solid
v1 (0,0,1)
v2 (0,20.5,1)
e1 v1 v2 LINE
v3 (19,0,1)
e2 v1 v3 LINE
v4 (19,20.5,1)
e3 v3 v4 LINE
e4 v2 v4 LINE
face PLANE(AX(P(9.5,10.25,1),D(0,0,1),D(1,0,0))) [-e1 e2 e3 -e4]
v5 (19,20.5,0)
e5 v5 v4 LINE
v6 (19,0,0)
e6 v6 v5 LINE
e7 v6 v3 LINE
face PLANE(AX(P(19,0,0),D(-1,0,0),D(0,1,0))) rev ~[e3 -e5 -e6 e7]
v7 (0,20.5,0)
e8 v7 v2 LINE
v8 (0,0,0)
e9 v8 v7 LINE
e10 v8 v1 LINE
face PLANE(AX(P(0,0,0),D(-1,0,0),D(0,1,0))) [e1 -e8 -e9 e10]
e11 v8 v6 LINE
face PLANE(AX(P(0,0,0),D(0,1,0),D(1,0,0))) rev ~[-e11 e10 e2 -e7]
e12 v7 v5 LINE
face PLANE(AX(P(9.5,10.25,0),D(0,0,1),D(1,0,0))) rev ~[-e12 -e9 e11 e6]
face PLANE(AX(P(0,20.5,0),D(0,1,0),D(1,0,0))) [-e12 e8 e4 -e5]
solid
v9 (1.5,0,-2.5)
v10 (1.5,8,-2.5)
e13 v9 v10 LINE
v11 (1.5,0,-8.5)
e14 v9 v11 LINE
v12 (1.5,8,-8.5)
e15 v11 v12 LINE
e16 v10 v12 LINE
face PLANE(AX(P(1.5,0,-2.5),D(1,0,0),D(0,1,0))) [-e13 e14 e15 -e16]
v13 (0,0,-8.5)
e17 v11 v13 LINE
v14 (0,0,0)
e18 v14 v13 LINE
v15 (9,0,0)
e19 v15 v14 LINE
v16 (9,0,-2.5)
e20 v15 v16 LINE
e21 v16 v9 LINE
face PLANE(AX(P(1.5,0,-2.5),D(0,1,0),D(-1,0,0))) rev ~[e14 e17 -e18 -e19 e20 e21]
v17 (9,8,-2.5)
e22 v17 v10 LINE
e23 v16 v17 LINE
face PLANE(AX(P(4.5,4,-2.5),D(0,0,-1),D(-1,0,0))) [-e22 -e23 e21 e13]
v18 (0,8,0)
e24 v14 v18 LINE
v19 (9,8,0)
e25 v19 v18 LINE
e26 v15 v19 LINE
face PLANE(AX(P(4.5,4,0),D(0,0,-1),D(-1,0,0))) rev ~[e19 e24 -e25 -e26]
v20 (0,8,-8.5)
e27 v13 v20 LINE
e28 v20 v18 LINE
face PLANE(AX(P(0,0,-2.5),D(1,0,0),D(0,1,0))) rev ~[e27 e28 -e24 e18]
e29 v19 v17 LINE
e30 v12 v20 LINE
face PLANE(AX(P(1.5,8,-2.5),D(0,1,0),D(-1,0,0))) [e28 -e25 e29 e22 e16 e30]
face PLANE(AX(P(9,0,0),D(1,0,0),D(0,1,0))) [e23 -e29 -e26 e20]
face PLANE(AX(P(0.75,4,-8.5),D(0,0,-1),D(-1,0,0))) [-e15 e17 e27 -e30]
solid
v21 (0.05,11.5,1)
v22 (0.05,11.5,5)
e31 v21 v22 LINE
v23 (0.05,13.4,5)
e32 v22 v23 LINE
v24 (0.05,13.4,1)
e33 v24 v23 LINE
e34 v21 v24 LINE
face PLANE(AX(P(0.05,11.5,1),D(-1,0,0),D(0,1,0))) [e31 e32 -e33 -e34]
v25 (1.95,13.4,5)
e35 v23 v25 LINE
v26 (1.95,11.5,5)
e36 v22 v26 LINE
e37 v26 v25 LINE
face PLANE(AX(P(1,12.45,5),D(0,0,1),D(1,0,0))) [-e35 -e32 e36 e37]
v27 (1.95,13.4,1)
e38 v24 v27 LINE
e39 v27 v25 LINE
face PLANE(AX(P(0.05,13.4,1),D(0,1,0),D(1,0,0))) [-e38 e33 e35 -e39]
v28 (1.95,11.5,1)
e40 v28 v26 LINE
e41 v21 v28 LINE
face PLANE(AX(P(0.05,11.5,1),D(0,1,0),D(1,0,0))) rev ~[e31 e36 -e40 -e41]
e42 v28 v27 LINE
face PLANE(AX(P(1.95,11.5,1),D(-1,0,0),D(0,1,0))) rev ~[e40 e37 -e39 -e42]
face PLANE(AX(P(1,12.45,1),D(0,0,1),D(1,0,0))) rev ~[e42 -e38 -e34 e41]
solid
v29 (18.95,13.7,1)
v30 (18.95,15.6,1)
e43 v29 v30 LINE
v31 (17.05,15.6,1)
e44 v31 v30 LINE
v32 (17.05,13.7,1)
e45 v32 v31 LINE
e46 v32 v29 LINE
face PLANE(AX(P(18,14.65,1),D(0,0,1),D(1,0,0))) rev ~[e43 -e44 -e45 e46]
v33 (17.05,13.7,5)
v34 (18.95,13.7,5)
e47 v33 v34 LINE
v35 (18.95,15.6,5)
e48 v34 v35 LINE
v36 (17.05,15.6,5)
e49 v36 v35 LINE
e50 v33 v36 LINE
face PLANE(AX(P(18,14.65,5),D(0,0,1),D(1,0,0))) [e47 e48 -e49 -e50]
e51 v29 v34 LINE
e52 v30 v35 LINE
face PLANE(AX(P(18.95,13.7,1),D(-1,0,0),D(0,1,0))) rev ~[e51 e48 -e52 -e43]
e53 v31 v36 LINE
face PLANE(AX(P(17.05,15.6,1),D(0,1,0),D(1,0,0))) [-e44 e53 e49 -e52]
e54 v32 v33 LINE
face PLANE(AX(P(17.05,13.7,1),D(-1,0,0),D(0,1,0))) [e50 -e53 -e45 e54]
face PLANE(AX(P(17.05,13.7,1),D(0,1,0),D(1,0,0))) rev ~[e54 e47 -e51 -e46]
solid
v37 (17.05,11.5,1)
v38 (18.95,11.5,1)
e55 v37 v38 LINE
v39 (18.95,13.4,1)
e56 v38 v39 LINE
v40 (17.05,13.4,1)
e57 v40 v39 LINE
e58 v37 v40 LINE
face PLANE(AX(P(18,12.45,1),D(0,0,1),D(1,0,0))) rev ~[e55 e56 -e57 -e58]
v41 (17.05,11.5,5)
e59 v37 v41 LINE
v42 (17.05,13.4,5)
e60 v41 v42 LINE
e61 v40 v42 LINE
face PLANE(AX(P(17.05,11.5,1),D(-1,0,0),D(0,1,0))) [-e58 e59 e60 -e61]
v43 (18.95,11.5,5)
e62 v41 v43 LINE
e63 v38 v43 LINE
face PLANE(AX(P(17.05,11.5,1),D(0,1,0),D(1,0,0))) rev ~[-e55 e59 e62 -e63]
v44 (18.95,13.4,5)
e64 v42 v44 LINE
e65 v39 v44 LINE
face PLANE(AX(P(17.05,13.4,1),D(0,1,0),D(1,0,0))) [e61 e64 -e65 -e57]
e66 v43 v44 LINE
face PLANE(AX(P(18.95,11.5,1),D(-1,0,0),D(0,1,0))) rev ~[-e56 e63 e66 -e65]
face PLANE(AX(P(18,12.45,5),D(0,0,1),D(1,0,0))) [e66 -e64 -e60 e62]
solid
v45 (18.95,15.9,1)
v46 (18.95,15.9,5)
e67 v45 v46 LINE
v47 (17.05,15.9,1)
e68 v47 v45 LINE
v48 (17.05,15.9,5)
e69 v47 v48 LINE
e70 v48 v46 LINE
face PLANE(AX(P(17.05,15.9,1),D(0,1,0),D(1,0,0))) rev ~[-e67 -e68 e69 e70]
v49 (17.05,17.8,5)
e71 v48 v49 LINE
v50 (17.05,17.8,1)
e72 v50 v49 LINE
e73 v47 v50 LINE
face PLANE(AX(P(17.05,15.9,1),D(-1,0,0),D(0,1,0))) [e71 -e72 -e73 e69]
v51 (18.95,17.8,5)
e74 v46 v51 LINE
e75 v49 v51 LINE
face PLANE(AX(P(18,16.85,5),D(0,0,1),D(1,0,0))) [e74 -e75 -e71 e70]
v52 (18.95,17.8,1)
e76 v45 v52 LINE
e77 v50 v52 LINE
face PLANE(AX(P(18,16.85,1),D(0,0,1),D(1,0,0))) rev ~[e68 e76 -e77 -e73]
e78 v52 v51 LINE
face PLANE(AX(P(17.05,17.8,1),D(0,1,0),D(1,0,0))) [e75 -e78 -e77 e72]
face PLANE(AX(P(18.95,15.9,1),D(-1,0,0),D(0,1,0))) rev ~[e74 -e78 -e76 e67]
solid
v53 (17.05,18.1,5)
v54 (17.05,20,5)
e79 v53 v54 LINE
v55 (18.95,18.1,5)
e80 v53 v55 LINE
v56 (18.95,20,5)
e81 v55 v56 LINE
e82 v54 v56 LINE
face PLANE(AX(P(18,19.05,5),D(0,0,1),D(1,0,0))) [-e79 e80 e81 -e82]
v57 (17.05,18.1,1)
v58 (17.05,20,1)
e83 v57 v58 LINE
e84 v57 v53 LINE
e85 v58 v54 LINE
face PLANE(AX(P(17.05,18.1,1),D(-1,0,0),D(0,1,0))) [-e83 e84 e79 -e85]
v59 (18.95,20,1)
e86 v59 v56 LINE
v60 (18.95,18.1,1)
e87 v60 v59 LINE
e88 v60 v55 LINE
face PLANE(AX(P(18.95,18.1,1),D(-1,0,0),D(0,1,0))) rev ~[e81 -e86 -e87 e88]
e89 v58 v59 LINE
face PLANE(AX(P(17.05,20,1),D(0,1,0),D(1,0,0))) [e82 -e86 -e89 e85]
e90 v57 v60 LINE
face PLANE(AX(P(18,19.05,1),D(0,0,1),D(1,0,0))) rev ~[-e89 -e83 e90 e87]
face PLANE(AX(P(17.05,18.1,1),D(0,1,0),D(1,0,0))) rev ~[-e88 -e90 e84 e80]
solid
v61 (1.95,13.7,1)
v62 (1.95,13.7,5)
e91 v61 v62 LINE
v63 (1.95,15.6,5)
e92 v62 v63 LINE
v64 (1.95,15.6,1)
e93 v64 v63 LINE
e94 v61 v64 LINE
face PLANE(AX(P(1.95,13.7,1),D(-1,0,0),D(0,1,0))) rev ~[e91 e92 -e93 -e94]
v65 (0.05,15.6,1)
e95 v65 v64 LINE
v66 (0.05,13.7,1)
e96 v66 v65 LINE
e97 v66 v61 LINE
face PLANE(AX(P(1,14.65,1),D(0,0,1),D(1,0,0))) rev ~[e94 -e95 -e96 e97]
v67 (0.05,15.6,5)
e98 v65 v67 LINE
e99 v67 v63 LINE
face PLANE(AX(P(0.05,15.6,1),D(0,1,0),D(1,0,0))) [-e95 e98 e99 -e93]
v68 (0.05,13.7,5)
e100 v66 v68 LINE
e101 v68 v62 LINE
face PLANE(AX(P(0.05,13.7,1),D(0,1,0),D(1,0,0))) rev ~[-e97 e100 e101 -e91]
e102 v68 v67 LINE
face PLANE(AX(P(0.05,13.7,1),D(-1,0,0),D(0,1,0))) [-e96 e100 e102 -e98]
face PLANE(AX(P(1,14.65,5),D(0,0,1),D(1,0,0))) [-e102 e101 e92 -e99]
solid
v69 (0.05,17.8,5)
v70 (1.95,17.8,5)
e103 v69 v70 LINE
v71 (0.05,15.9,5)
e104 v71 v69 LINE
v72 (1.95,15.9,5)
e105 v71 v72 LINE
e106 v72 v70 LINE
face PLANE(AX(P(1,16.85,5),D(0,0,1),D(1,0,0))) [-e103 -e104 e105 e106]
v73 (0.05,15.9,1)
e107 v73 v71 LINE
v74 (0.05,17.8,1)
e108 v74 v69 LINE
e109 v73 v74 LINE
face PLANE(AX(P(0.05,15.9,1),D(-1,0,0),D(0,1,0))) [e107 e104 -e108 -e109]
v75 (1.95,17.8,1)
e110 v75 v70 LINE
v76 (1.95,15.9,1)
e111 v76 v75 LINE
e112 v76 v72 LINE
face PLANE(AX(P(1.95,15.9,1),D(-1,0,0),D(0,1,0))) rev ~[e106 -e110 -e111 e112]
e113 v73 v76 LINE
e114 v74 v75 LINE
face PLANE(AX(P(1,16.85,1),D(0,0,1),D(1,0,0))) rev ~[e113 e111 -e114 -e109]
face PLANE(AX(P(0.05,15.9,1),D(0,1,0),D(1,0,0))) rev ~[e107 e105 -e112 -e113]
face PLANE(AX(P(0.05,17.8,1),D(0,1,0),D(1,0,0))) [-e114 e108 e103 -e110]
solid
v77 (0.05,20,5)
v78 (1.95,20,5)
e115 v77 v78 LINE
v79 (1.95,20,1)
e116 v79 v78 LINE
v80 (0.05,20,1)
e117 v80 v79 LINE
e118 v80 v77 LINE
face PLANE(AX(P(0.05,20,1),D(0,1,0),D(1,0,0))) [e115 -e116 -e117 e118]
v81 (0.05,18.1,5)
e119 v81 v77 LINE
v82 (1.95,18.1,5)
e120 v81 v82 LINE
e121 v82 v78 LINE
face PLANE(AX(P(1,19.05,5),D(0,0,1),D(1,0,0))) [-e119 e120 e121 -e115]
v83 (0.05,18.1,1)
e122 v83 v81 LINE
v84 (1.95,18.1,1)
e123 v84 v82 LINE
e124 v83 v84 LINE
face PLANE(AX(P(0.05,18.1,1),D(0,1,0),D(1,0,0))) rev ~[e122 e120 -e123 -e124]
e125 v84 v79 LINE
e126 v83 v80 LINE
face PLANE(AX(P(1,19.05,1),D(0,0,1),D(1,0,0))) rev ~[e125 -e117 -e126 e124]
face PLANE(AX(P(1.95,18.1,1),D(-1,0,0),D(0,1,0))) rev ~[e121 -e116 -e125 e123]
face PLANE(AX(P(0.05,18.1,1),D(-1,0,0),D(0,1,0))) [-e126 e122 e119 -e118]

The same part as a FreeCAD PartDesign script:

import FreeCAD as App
import Part
import Sketcher
from FreeCAD import Vector
Q = App.Units.Quantity


def add_polygon(sketch, points):
    """Adds a closed chain of lines whose ends are joined by coincident constraints."""
    first, n = sketch.GeometryCount, len(points)
    for a, b in zip(points, points[1:] + points[:1]):
        sketch.addGeometry(Part.LineSegment(App.Vector(*a, 0), App.Vector(*b, 0)), False)
    for i in range(n):
        sketch.addConstraint(Sketcher.Constraint("Coincident", first + i, 2, first + (i + 1) % n, 1))

doc = App.newDocument("Part")
body = doc.addObject("PartDesign::Body", "Body")

# Sketch on XY plane
sketch1 = doc.addObject("Sketcher::SketchObject", "Sketch")
body.addObject(sketch1)
sketch1.AttachmentSupport = (doc.XY_Plane, [""])
sketch1.MapMode = "FlatFace"
add_polygon(sketch1, [(0, 20.5), (0, 0), (19, 0), (19, 20.5)])  # lines 0-3
sketch1.addConstraint(Sketcher.Constraint("Vertical", 0))
sketch1.addConstraint(Sketcher.Constraint("Horizontal", 1))
sketch1.addConstraint(Sketcher.Constraint("Vertical", 2))
sketch1.addConstraint(Sketcher.Constraint("Horizontal", 3))
sketch1.addConstraint(Sketcher.Constraint("Coincident", 0, 2, -1, 1))
sketch1.addConstraint(Sketcher.Constraint("DistanceX", 1, 1, 1, 2, Q("19 mm")))
sketch1.addConstraint(Sketcher.Constraint("DistanceY", 0, 2, 0, 1, Q("20.5 mm")))
pad1 = doc.addObject("PartDesign::Pad", "Pad")
body.addObject(pad1)
pad1.Profile = sketch1
pad1.Length = 1
body2 = doc.addObject("PartDesign::Body", "Body001")

# Sketch on XY plane
sketch2 = doc.addObject("Sketcher::SketchObject", "Sketch001")
body2.addObject(sketch2)
sketch2.AttachmentSupport = (doc.getObject("XY_Plane001"), [""])
sketch2.MapMode = "FlatFace"
sketch2.AttachmentOffset = App.Placement(Vector(0, 0, 1), App.Rotation())
add_polygon(sketch2, [(0.05, 20), (0.05, 18.1), (1.95, 18.1), (1.95, 20)])  # lines 0-3
sketch2.addConstraint(Sketcher.Constraint("Vertical", 0))
sketch2.addConstraint(Sketcher.Constraint("Horizontal", 1))
sketch2.addConstraint(Sketcher.Constraint("Vertical", 2))
sketch2.addConstraint(Sketcher.Constraint("Horizontal", 3))
sketch2.addConstraint(Sketcher.Constraint("Equal", 3, 0))
sketch2.addConstraint(Sketcher.Constraint("DistanceX", 1, 1, 1, 2, Q("1.9 mm")))
sketch2.addConstraint(Sketcher.Constraint("DistanceY", -1, 1, 2, 2, Q("20 mm")))
sketch2.addConstraint(Sketcher.Constraint("DistanceX", -1, 1, 0, 2, Q("0.05 mm")))
pad2 = doc.addObject("PartDesign::Pad", "Pad001")
body2.addObject(pad2)
pad2.Profile = sketch2
pad2.Length = 4
body3 = doc.addObject("PartDesign::Body", "Body002")

# Sketch on XY plane
sketch3 = doc.addObject("Sketcher::SketchObject", "Sketch002")
body3.addObject(sketch3)
sketch3.AttachmentSupport = (doc.getObject("XY_Plane002"), [""])
sketch3.MapMode = "FlatFace"
sketch3.AttachmentOffset = App.Placement(Vector(0, 0, 1), App.Rotation())
add_polygon(sketch3, [(17.05, 20), (17.05, 18.1), (18.95, 18.1), (18.95, 20)])  # lines 0-3
sketch3.addConstraint(Sketcher.Constraint("Vertical", 0))
sketch3.addConstraint(Sketcher.Constraint("Horizontal", 1))
sketch3.addConstraint(Sketcher.Constraint("Vertical", 2))
sketch3.addConstraint(Sketcher.Constraint("Horizontal", 3))
sketch3.addConstraint(Sketcher.Constraint("Equal", 3, 0))
sketch3.addConstraint(Sketcher.Constraint("DistanceX", 1, 1, 1, 2, Q("1.9 mm")))
sketch3.addConstraint(Sketcher.Constraint("DistanceY", -1, 1, 2, 2, Q("20 mm")))
sketch3.addConstraint(Sketcher.Constraint("DistanceX", -1, 1, 0, 2, Q("17.05 mm")))
pad3 = doc.addObject("PartDesign::Pad", "Pad002")
body3.addObject(pad3)
pad3.Profile = sketch3
pad3.Length = 4
body4 = doc.addObject("PartDesign::Body", "Body003")

# Sketch on XY plane
sketch4 = doc.addObject("Sketcher::SketchObject", "Sketch003")
body4.addObject(sketch4)
sketch4.AttachmentSupport = (doc.getObject("XY_Plane003"), [""])
sketch4.MapMode = "FlatFace"
sketch4.AttachmentOffset = App.Placement(Vector(0, 0, 1), App.Rotation())
add_polygon(sketch4, [(0.05, 17.8), (0.05, 15.9), (1.95, 15.9), (1.95, 17.8)])  # lines 0-3
sketch4.addConstraint(Sketcher.Constraint("Vertical", 0))
sketch4.addConstraint(Sketcher.Constraint("Horizontal", 1))
sketch4.addConstraint(Sketcher.Constraint("Vertical", 2))
sketch4.addConstraint(Sketcher.Constraint("Horizontal", 3))
sketch4.addConstraint(Sketcher.Constraint("Equal", 3, 0))
sketch4.addConstraint(Sketcher.Constraint("DistanceX", 1, 1, 1, 2, Q("1.9 mm")))
sketch4.addConstraint(Sketcher.Constraint("DistanceY", -1, 1, 0, 2, Q("15.9 mm")))
sketch4.addConstraint(Sketcher.Constraint("DistanceX", -1, 1, 0, 2, Q("0.05 mm")))
pad4 = doc.addObject("PartDesign::Pad", "Pad003")
body4.addObject(pad4)
pad4.Profile = sketch4
pad4.Length = 4
body5 = doc.addObject("PartDesign::Body", "Body004")

# Sketch on XY plane
sketch5 = doc.addObject("Sketcher::SketchObject", "Sketch004")
body5.addObject(sketch5)
sketch5.AttachmentSupport = (doc.getObject("XY_Plane004"), [""])
sketch5.MapMode = "FlatFace"
sketch5.AttachmentOffset = App.Placement(Vector(0, 0, 1), App.Rotation())
add_polygon(sketch5, [(17.05, 17.8), (17.05, 15.9), (18.95, 15.9), (18.95, 17.8)])  # lines 0-3
sketch5.addConstraint(Sketcher.Constraint("Vertical", 0))
sketch5.addConstraint(Sketcher.Constraint("Horizontal", 1))
sketch5.addConstraint(Sketcher.Constraint("Vertical", 2))
sketch5.addConstraint(Sketcher.Constraint("Horizontal", 3))
sketch5.addConstraint(Sketcher.Constraint("Equal", 3, 0))
sketch5.addConstraint(Sketcher.Constraint("DistanceX", 1, 1, 1, 2, Q("1.9 mm")))
sketch5.addConstraint(Sketcher.Constraint("DistanceY", -1, 1, 0, 2, Q("15.9 mm")))
sketch5.addConstraint(Sketcher.Constraint("DistanceX", -1, 1, 0, 2, Q("17.05 mm")))
pad5 = doc.addObject("PartDesign::Pad", "Pad004")
body5.addObject(pad5)
pad5.Profile = sketch5
pad5.Length = 4
body6 = doc.addObject("PartDesign::Body", "Body005")

# Sketch on XY plane
sketch6 = doc.addObject("Sketcher::SketchObject", "Sketch005")
body6.addObject(sketch6)
sketch6.AttachmentSupport = (doc.getObject("XY_Plane005"), [""])
sketch6.MapMode = "FlatFace"
sketch6.AttachmentOffset = App.Placement(Vector(0, 0, 1), App.Rotation())
add_polygon(sketch6, [(0.05, 15.6), (0.05, 13.7), (1.95, 13.7), (1.95, 15.6)])  # lines 0-3
sketch6.addConstraint(Sketcher.Constraint("Vertical", 0))
sketch6.addConstraint(Sketcher.Constraint("Horizontal", 1))
sketch6.addConstraint(Sketcher.Constraint("Vertical", 2))
sketch6.addConstraint(Sketcher.Constraint("Horizontal", 3))
sketch6.addConstraint(Sketcher.Constraint("Equal", 3, 0))
sketch6.addConstraint(Sketcher.Constraint("DistanceX", 1, 1, 1, 2, Q("1.9 mm")))
sketch6.addConstraint(Sketcher.Constraint("DistanceY", -1, 1, 0, 2, Q("13.7 mm")))
sketch6.addConstraint(Sketcher.Constraint("DistanceX", -1, 1, 0, 2, Q("0.05 mm")))
pad6 = doc.addObject("PartDesign::Pad", "Pad005")
body6.addObject(pad6)
pad6.Profile = sketch6
pad6.Length = 4
body7 = doc.addObject("PartDesign::Body", "Body006")

# Sketch on XY plane
sketch7 = doc.addObject("Sketcher::SketchObject", "Sketch006")
body7.addObject(sketch7)
sketch7.AttachmentSupport = (doc.getObject("XY_Plane006"), [""])
sketch7.MapMode = "FlatFace"
sketch7.AttachmentOffset = App.Placement(Vector(0, 0, 1), App.Rotation())
add_polygon(sketch7, [(17.05, 15.6), (17.05, 13.7), (18.95, 13.7), (18.95, 15.6)])  # lines 0-3
sketch7.addConstraint(Sketcher.Constraint("Vertical", 0))
sketch7.addConstraint(Sketcher.Constraint("Horizontal", 1))
sketch7.addConstraint(Sketcher.Constraint("Vertical", 2))
sketch7.addConstraint(Sketcher.Constraint("Horizontal", 3))
sketch7.addConstraint(Sketcher.Constraint("Equal", 3, 0))
sketch7.addConstraint(Sketcher.Constraint("DistanceX", 1, 1, 1, 2, Q("1.9 mm")))
sketch7.addConstraint(Sketcher.Constraint("DistanceY", -1, 1, 0, 2, Q("13.7 mm")))
sketch7.addConstraint(Sketcher.Constraint("DistanceX", -1, 1, 0, 2, Q("17.05 mm")))
pad7 = doc.addObject("PartDesign::Pad", "Pad006")
body7.addObject(pad7)
pad7.Profile = sketch7
pad7.Length = 4
body8 = doc.addObject("PartDesign::Body", "Body007")

# Sketch on XY plane
sketch8 = doc.addObject("Sketcher::SketchObject", "Sketch007")
body8.addObject(sketch8)
sketch8.AttachmentSupport = (doc.getObject("XY_Plane007"), [""])
sketch8.MapMode = "FlatFace"
sketch8.AttachmentOffset = App.Placement(Vector(0, 0, 1), App.Rotation())
add_polygon(sketch8, [(0.05, 13.4), (0.05, 11.5), (1.95, 11.5), (1.95, 13.4)])  # lines 0-3
sketch8.addConstraint(Sketcher.Constraint("Vertical", 0))
sketch8.addConstraint(Sketcher.Constraint("Horizontal", 1))
sketch8.addConstraint(Sketcher.Constraint("Vertical", 2))
sketch8.addConstraint(Sketcher.Constraint("Horizontal", 3))
sketch8.addConstraint(Sketcher.Constraint("Equal", 3, 0))
sketch8.addConstraint(Sketcher.Constraint("DistanceX", 1, 1, 1, 2, Q("1.9 mm")))
sketch8.addConstraint(Sketcher.Constraint("DistanceY", -1, 1, 0, 2, Q("11.5 mm")))
sketch8.addConstraint(Sketcher.Constraint("DistanceX", -1, 1, 0, 2, Q("0.05 mm")))
pad8 = doc.addObject("PartDesign::Pad", "Pad007")
body8.addObject(pad8)
pad8.Profile = sketch8
pad8.Length = 4
body9 = doc.addObject("PartDesign::Body", "Body008")

# Sketch on XY plane
sketch9 = doc.addObject("Sketcher::SketchObject", "Sketch008")
body9.addObject(sketch9)
sketch9.AttachmentSupport = (doc.getObject("XY_Plane008"), [""])
sketch9.MapMode = "FlatFace"
sketch9.AttachmentOffset = App.Placement(Vector(0, 0, 1), App.Rotation())
add_polygon(sketch9, [(17.05, 13.4), (17.05, 11.5), (18.95, 11.5), (18.95, 13.4)])  # lines 0-3
sketch9.addConstraint(Sketcher.Constraint("Vertical", 0))
sketch9.addConstraint(Sketcher.Constraint("Horizontal", 1))
sketch9.addConstraint(Sketcher.Constraint("Vertical", 2))
sketch9.addConstraint(Sketcher.Constraint("Horizontal", 3))
sketch9.addConstraint(Sketcher.Constraint("Equal", 3, 0))
sketch9.addConstraint(Sketcher.Constraint("DistanceX", 1, 1, 1, 2, Q("1.9 mm")))
sketch9.addConstraint(Sketcher.Constraint("DistanceY", -1, 1, 0, 2, Q("11.5 mm")))
sketch9.addConstraint(Sketcher.Constraint("DistanceX", -1, 1, 0, 2, Q("17.05 mm")))
pad9 = doc.addObject("PartDesign::Pad", "Pad008")
body9.addObject(pad9)
pad9.Profile = sketch9
pad9.Length = 4
body10 = doc.addObject("PartDesign::Body", "Body009")

# Sketch on XY plane
sketch10 = doc.addObject("Sketcher::SketchObject", "Sketch009")
body10.addObject(sketch10)
sketch10.AttachmentSupport = (doc.getObject("XY_Plane009"), [""])
sketch10.MapMode = "FlatFace"
add_polygon(sketch10, [(9, 8), (9, 0), (0, 0), (0, 8)])  # lines 0-3
sketch10.addConstraint(Sketcher.Constraint("Vertical", 0))
sketch10.addConstraint(Sketcher.Constraint("Horizontal", 1))
sketch10.addConstraint(Sketcher.Constraint("Vertical", 2))
sketch10.addConstraint(Sketcher.Constraint("Horizontal", 3))
sketch10.addConstraint(Sketcher.Constraint("Coincident", 1, 2, -1, 1))
sketch10.addConstraint(Sketcher.Constraint("DistanceX", 1, 2, 1, 1, Q("9 mm")))
sketch10.addConstraint(Sketcher.Constraint("DistanceY", 0, 2, 0, 1, Q("8 mm")))
pad10 = doc.addObject("PartDesign::Pad", "Pad009")
body10.addObject(pad10)
pad10.Profile = sketch10
pad10.Length = 2.5
pad10.Reversed = True

# Sketch on XY plane
sketch11 = doc.addObject("Sketcher::SketchObject", "Sketch010")
body10.addObject(sketch11)
sketch11.AttachmentSupport = (doc.getObject("XY_Plane009"), [""])
sketch11.MapMode = "FlatFace"
sketch11.AttachmentOffset = App.Placement(Vector(0, 0, -2.5), App.Rotation())
add_polygon(sketch11, [(1.5, 8), (1.5, 0), (0, 0), (0, 8)])  # lines 0-3
sketch11.addConstraint(Sketcher.Constraint("Vertical", 0))
sketch11.addConstraint(Sketcher.Constraint("Horizontal", 1))
sketch11.addConstraint(Sketcher.Constraint("Vertical", 2))
sketch11.addConstraint(Sketcher.Constraint("Horizontal", 3))
sketch11.addConstraint(Sketcher.Constraint("Coincident", 1, 2, -1, 1))
sketch11.addConstraint(Sketcher.Constraint("DistanceY", 0, 2, 0, 1, Q("8 mm")))
sketch11.addConstraint(Sketcher.Constraint("DistanceX", 1, 2, 1, 1, Q("1.5 mm")))
pad11 = doc.addObject("PartDesign::Pad", "Pad010")
body10.addObject(pad11)
pad11.Profile = sketch11
pad11.Length = 6
pad11.Reversed = True

doc.recompute()
